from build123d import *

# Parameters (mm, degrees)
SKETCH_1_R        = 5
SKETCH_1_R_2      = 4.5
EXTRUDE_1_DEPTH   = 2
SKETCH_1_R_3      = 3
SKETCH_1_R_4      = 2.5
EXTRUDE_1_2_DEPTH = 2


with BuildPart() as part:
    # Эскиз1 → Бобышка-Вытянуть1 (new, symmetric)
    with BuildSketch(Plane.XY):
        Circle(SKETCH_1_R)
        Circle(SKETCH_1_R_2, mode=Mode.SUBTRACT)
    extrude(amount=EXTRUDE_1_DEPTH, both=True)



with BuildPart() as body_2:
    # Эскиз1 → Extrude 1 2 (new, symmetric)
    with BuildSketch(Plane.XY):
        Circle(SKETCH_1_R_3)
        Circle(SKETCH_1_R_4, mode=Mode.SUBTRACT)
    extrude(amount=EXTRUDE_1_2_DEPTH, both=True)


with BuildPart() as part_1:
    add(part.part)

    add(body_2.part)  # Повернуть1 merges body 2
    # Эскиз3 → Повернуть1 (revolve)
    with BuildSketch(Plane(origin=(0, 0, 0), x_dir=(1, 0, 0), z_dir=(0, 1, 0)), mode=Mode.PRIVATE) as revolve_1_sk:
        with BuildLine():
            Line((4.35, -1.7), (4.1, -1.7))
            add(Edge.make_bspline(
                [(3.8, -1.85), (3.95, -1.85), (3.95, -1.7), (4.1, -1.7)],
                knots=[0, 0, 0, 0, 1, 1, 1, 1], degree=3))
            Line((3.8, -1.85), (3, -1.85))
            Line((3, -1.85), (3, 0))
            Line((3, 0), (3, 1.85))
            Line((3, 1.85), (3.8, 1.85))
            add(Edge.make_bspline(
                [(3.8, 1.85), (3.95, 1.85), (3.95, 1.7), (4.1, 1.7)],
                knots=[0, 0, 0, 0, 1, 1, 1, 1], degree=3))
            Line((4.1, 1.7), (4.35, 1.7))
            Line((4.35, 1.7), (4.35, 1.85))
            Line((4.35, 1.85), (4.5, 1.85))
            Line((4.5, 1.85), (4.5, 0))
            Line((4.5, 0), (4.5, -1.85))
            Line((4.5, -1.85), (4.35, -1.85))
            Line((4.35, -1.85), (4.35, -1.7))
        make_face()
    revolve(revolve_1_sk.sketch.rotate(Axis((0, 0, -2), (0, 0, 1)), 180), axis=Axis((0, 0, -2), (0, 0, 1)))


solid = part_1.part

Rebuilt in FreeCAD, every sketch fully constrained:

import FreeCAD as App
import Part
import Sketcher
Q = App.Units.Quantity

doc = App.newDocument("Part")
body = doc.addObject("PartDesign::Body", "Body")

# Sketch on XY plane
sketch1 = body.newObject("Sketcher::SketchObject", "Sketch")
sketch1.AttachmentSupport = (doc.getObject("XY_Plane"), [""])
sketch1.MapMode = "FlatFace"
sketch1.addGeometry([
    Part.Circle(App.Vector(0, 0, 0), App.Vector(0, 0, 1), 5),
    Part.Circle(App.Vector(0, 0, 0), App.Vector(0, 0, 1), 4.5),
], False)
sketch1.addConstraint([
    Sketcher.Constraint("Coincident", 0, 3, -1, 1),
    Sketcher.Constraint("Coincident", 1, 3, -1, 1),
    Sketcher.Constraint("Diameter", 0, Q("10 mm")),
    Sketcher.Constraint("Diameter", 1, Q("9 mm")),
])
pad1 = body.newObject("PartDesign::Pad", "Pad")
pad1.Profile = sketch1
pad1.Length = 4
pad1.Midplane = True
body2 = doc.addObject("PartDesign::Body", "Body001")

# Sketch on XY plane
sketch2 = body2.newObject("Sketcher::SketchObject", "Sketch001")
sketch2.AttachmentSupport = (doc.getObject("XY_Plane001"), [""])
sketch2.MapMode = "FlatFace"
sketch2.addGeometry([
    Part.Circle(App.Vector(0, 0, 0), App.Vector(0, 0, 1), 3),
    Part.Circle(App.Vector(0, 0, 0), App.Vector(0, 0, 1), 2.5),
], False)
sketch2.addConstraint([
    Sketcher.Constraint("Coincident", 0, 3, -1, 1),
    Sketcher.Constraint("Coincident", 1, 3, -1, 1),
    Sketcher.Constraint("Diameter", 0, Q("6 mm")),
    Sketcher.Constraint("Diameter", 1, Q("5 mm")),
])
pad2 = body2.newObject("PartDesign::Pad", "Pad001")
pad2.Profile = sketch2
pad2.Length = 4
pad2.Midplane = True
body.AllowCompound = True
doc.recompute()

boolean = body.newObject("PartDesign::Boolean", "Boolean")
boolean.Type = "Fuse"
boolean.addObjects([body2])

# Sketch on XZ plane
sketch3 = body.newObject("Sketcher::SketchObject", "Sketch002")
sketch3.AttachmentSupport = (doc.getObject("XZ_Plane"), [""])
sketch3.MapMode = "FlatFace"
sketch3.addGeometry([
    Part.LineSegment(App.Vector(4.1, 1.7, 0), App.Vector(4.35, 1.7, 0)),  # 0
    Part.LineSegment(App.Vector(4.35, 1.7, 0), App.Vector(4.35, 1.85, 0)),  # 1
    Part.LineSegment(App.Vector(4.35, 1.85, 0), App.Vector(4.5, 1.85, 0)),  # 2
    Part.LineSegment(App.Vector(4.5, 1.85, 0), App.Vector(4.5, -1.85, 0)),  # 3
    Part.LineSegment(App.Vector(4.5, -1.85, 0), App.Vector(4.35, -1.85, 0)),  # 4
    Part.LineSegment(App.Vector(4.35, -1.85, 0), App.Vector(4.35, -1.7, 0)),  # 5
    Part.LineSegment(App.Vector(4.35, -1.7, 0), App.Vector(4.1, -1.7, 0)),  # 6
    Part.BSplineCurve([App.Vector(3.8, -1.85, 0), App.Vector(3.95, -1.85, 0), App.Vector(3.95, -1.7, 0), App.Vector(4.1, -1.7, 0)], [4, 4], [0, 1], False, 3, [1, 1, 1, 1], False),  # 7
    Part.LineSegment(App.Vector(3.8, -1.85, 0), App.Vector(3, -1.85, 0)),  # 8
    Part.LineSegment(App.Vector(3, -1.85, 0), App.Vector(3, 1.85, 0)),  # 9
    Part.LineSegment(App.Vector(3, 1.85, 0), App.Vector(3.8, 1.85, 0)),  # 10
    Part.BSplineCurve([App.Vector(3.8, 1.85, 0), App.Vector(3.95, 1.85, 0), App.Vector(3.95, 1.7, 0), App.Vector(4.1, 1.7, 0)], [4, 4], [0, 1], False, 3, [1, 1, 1, 1], False),  # 11
], False)
sketch3.addConstraint([
    Sketcher.Constraint("Block", 7),
    Sketcher.Constraint("Block", 11),
    Sketcher.Constraint("Coincident", 0, 2, 1, 1),
    Sketcher.Constraint("Coincident", 1, 2, 2, 1),
    Sketcher.Constraint("Coincident", 2, 2, 3, 1),
    Sketcher.Constraint("Coincident", 3, 2, 4, 1),
    Sketcher.Constraint("Coincident", 4, 2, 5, 1),
    Sketcher.Constraint("Coincident", 5, 2, 6, 1),
    Sketcher.Constraint("Coincident", 6, 2, 7, 2),
    Sketcher.Constraint("Coincident", 7, 1, 8, 1),
    Sketcher.Constraint("Coincident", 8, 2, 9, 1),
    Sketcher.Constraint("Coincident", 9, 2, 10, 1),
    Sketcher.Constraint("Coincident", 10, 2, 11, 1),
    Sketcher.Constraint("Coincident", 11, 2, 0, 1),
    Sketcher.Constraint("Horizontal", 0),
    Sketcher.Constraint("Vertical", 1),
    Sketcher.Constraint("Horizontal", 2),
    Sketcher.Constraint("Vertical", 3),
    Sketcher.Constraint("Horizontal", 4),
    Sketcher.Constraint("Vertical", 5),
    Sketcher.Constraint("Horizontal", 6),
    Sketcher.Constraint("Horizontal", 8),
    Sketcher.Constraint("Vertical", 9),
    Sketcher.Constraint("Horizontal", 10),
    Sketcher.Constraint("DistanceX", 8, 2, 8, 1, Q("0.8 mm")),
    Sketcher.Constraint("DistanceY", 3, 2, 3, 1, Q("3.7 mm")),
    Sketcher.Constraint("DistanceX", 0, 1, 0, 2, Q("0.25 mm")),
    Sketcher.Constraint("DistanceX", 2, 1, 2, 2, Q("0.15 mm")),
    Sketcher.Constraint("DistanceX", 4, 2, 4, 1, Q("0.15 mm")),
    Sketcher.Constraint("DistanceY", 1, 1, 1, 2, Q("0.15 mm")),
])
revolution = body.newObject("PartDesign::Revolution", "Revolution")
revolution.Profile = sketch3
revolution.ReferenceAxis = (sketch3, ["V_Axis"])
revolution.Angle = 360

doc.recompute()
